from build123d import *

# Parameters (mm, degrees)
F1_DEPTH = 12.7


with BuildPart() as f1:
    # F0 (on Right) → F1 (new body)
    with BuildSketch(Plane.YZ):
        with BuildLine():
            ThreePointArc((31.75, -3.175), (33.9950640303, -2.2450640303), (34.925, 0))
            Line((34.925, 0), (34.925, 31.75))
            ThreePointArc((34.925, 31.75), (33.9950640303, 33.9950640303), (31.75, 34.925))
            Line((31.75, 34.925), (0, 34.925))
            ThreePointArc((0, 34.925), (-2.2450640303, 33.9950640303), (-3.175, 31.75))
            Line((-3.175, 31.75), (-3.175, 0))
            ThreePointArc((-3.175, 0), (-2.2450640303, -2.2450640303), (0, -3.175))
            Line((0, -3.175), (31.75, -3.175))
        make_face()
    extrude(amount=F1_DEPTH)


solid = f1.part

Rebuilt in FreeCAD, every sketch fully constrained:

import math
import FreeCAD as App
import Part
import Sketcher

V = App.Vector
Q = App.Units.Quantity

doc = App.newDocument("Part")
body = doc.addObject("PartDesign::Body", "Body")

# Sketch on YZ plane
sketch1 = body.newObject("Sketcher::SketchObject", "Sketch")
sketch1.AttachmentSupport = (doc.getObject("YZ_Plane"), [""])
sketch1.MapMode = "FlatFace"
sketch1.addGeometry([
    Part.ArcOfCircle(Part.Circle(V(31.75, 0, 0), V(0, 0, 1), 3.175), math.radians(-90), math.radians(0)),  # 0
    Part.LineSegment(V(34.925, 0, 0), V(34.925, 31.75, 0)),  # 1
    Part.ArcOfCircle(Part.Circle(V(31.75, 31.75, 0), V(0, 0, 1), 3.175), math.radians(0), math.radians(90)),  # 2
    Part.LineSegment(V(31.75, 34.925, 0), V(0, 34.925, 0)),  # 3
    Part.ArcOfCircle(Part.Circle(V(0, 31.75, 0), V(0, 0, 1), 3.175), math.radians(90), math.radians(180)),  # 4
    Part.LineSegment(V(-3.175, 31.75, 0), V(-3.175, 0, 0)),  # 5
    Part.ArcOfCircle(Part.Circle(V(0, 0, 0), V(0, 0, 1), 3.175), math.radians(180), math.radians(270)),  # 6
    Part.LineSegment(V(0, -3.175, 0), V(31.75, -3.175, 0)),  # 7
], False)
sketch1.addConstraint([
    Sketcher.Constraint("Tangent", 0, 2, 1, 1),
    Sketcher.Constraint("Tangent", 1, 2, 2, 1),
    Sketcher.Constraint("Tangent", 2, 2, 3, 1),
    Sketcher.Constraint("Tangent", 3, 2, 4, 1),
    Sketcher.Constraint("Tangent", 4, 2, 5, 1),
    Sketcher.Constraint("Tangent", 5, 2, 6, 1),
    Sketcher.Constraint("Tangent", 6, 2, 7, 1),
    Sketcher.Constraint("Tangent", 7, 2, 0, 1),
    Sketcher.Constraint("Vertical", 1),
    Sketcher.Constraint("Horizontal", 3),
    Sketcher.Constraint("Vertical", 5),
    Sketcher.Constraint("Horizontal", 7),
    Sketcher.Constraint("Coincident", 6, 3, -1, 1),
    Sketcher.Constraint("Equal", 0, 2),
    Sketcher.Constraint("Equal", 2, 4),
    Sketcher.Constraint("Equal", 4, 6),
    Sketcher.Constraint("Equal", 7, 1),
    Sketcher.Constraint("Radius", 0, Q("0.125 in")),
    Sketcher.Constraint("DistanceX", 3, 2, 3, 1, Q("1.25 in")),
])
pad1 = body.newObject("PartDesign::Pad", "Pad")
pad1.Profile = sketch1
pad1.Length = Q("0.5 in")

doc.recompute()
